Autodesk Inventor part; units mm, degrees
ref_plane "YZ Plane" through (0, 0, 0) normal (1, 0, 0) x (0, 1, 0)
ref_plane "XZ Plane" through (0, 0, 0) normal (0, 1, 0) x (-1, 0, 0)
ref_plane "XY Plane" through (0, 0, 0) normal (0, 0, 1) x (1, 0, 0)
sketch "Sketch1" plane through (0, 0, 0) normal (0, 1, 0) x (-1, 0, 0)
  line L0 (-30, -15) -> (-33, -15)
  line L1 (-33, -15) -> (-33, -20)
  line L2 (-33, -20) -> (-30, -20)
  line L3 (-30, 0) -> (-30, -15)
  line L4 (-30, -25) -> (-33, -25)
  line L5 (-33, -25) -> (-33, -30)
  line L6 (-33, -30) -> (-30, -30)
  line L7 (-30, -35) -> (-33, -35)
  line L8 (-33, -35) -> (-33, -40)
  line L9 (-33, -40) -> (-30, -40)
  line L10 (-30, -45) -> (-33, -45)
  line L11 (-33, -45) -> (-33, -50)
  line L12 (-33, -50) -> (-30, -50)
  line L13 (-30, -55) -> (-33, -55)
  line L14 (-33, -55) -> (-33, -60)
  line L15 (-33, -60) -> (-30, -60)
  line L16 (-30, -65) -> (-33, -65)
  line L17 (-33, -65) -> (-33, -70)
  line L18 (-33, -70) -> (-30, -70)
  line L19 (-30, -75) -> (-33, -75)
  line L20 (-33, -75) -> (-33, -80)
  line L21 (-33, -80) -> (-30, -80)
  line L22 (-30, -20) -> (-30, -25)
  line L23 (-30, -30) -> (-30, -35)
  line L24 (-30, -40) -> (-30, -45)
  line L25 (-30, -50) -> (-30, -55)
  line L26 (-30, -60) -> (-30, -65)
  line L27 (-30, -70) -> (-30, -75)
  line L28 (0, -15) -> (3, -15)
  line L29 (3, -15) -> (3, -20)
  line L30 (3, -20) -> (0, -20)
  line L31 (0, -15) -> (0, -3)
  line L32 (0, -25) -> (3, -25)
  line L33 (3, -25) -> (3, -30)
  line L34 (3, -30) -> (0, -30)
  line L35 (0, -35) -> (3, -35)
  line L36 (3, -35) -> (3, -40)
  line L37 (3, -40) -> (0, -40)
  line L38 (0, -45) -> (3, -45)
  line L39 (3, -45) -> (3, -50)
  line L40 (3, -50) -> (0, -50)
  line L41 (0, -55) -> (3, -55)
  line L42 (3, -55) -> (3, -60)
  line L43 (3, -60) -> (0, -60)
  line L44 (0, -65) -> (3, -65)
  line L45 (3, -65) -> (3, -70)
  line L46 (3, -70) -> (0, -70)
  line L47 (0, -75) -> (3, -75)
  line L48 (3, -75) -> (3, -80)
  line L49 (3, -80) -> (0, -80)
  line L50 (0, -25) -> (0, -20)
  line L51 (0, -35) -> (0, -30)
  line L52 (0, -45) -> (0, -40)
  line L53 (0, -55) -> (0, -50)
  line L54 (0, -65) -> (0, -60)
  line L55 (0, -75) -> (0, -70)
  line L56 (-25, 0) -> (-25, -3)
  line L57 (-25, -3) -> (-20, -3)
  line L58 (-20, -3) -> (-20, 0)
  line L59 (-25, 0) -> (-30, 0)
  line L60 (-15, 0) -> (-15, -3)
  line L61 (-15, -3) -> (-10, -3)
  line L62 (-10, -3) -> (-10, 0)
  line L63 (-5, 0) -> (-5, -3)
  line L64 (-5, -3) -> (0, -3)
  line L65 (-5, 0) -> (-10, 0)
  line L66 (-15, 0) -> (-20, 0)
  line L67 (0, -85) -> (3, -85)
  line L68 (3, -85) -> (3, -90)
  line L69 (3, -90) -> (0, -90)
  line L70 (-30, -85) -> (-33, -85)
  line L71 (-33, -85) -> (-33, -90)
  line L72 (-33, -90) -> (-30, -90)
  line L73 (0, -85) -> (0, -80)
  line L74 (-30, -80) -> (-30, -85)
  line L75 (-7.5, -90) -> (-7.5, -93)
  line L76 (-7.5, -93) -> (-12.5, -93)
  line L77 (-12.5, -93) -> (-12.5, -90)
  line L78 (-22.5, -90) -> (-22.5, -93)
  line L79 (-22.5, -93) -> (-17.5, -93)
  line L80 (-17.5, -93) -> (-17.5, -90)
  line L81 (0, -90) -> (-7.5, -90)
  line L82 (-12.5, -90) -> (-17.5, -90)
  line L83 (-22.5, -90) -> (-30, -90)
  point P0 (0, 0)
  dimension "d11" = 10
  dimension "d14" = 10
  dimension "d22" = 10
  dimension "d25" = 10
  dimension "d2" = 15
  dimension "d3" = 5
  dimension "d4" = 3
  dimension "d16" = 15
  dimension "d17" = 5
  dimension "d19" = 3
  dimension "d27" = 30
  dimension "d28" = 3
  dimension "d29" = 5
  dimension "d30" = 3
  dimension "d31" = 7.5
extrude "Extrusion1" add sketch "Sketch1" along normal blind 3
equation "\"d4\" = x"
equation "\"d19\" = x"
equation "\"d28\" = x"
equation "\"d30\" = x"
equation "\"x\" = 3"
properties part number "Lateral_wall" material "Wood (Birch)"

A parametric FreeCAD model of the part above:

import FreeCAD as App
import Part
import Sketcher
from FreeCAD import Vector
Q = App.Units.Quantity

doc = App.newDocument("Part")
body = doc.addObject("PartDesign::Body", "Body")

# Sketch on XZ plane
sketch1 = body.newObject("Sketcher::SketchObject", "Sketch")
sketch1.AttachmentSupport = (doc.getObject("XZ_Plane"), [""])
sketch1.MapMode = "FlatFace"
sketch1.addGeometry([
    Part.LineSegment(Vector(30, 0, 0), Vector(30, -15, 0)),  # 0
    Part.LineSegment(Vector(30, -15, 0), Vector(33, -15, 0)),  # 1
    Part.LineSegment(Vector(33, -15, 0), Vector(33, -20, 0)),  # 2
    Part.LineSegment(Vector(33, -20, 0), Vector(30, -20, 0)),  # 3
    Part.LineSegment(Vector(30, -20, 0), Vector(30, -25, 0)),  # 4
    Part.LineSegment(Vector(30, -25, 0), Vector(33, -25, 0)),  # 5
    Part.LineSegment(Vector(33, -25, 0), Vector(33, -30, 0)),  # 6
    Part.LineSegment(Vector(33, -30, 0), Vector(30, -30, 0)),  # 7
    Part.LineSegment(Vector(30, -30, 0), Vector(30, -35, 0)),  # 8
    Part.LineSegment(Vector(30, -35, 0), Vector(33, -35, 0)),  # 9
    Part.LineSegment(Vector(33, -35, 0), Vector(33, -40, 0)),  # 10
    Part.LineSegment(Vector(33, -40, 0), Vector(30, -40, 0)),  # 11
    Part.LineSegment(Vector(30, -40, 0), Vector(30, -45, 0)),  # 12
    Part.LineSegment(Vector(30, -45, 0), Vector(33, -45, 0)),  # 13
    Part.LineSegment(Vector(33, -45, 0), Vector(33, -50, 0)),  # 14
    Part.LineSegment(Vector(33, -50, 0), Vector(30, -50, 0)),  # 15
    Part.LineSegment(Vector(30, -50, 0), Vector(30, -55, 0)),  # 16
    Part.LineSegment(Vector(30, -55, 0), Vector(33, -55, 0)),  # 17
    Part.LineSegment(Vector(33, -55, 0), Vector(33, -60, 0)),  # 18
    Part.LineSegment(Vector(33, -60, 0), Vector(30, -60, 0)),  # 19
    Part.LineSegment(Vector(30, -60, 0), Vector(30, -65, 0)),  # 20
    Part.LineSegment(Vector(30, -65, 0), Vector(33, -65, 0)),  # 21
    Part.LineSegment(Vector(33, -65, 0), Vector(33, -70, 0)),  # 22
    Part.LineSegment(Vector(33, -70, 0), Vector(30, -70, 0)),  # 23
    Part.LineSegment(Vector(30, -70, 0), Vector(30, -75, 0)),  # 24
    Part.LineSegment(Vector(30, -75, 0), Vector(33, -75, 0)),  # 25
    Part.LineSegment(Vector(33, -75, 0), Vector(33, -80, 0)),  # 26
    Part.LineSegment(Vector(33, -80, 0), Vector(30, -80, 0)),  # 27
    Part.LineSegment(Vector(30, -80, 0), Vector(30, -85, 0)),  # 28
    Part.LineSegment(Vector(30, -85, 0), Vector(33, -85, 0)),  # 29
    Part.LineSegment(Vector(33, -85, 0), Vector(33, -90, 0)),  # 30
    Part.LineSegment(Vector(33, -90, 0), Vector(22.5, -90, 0)),  # 31
    Part.LineSegment(Vector(22.5, -90, 0), Vector(22.5, -93, 0)),  # 32
    Part.LineSegment(Vector(22.5, -93, 0), Vector(17.5, -93, 0)),  # 33
    Part.LineSegment(Vector(17.5, -93, 0), Vector(17.5, -90, 0)),  # 34
    Part.LineSegment(Vector(17.5, -90, 0), Vector(12.5, -90, 0)),  # 35
    Part.LineSegment(Vector(12.5, -90, 0), Vector(12.5, -93, 0)),  # 36
    Part.LineSegment(Vector(12.5, -93, 0), Vector(7.5, -93, 0)),  # 37
    Part.LineSegment(Vector(7.5, -93, 0), Vector(7.5, -90, 0)),  # 38
    Part.LineSegment(Vector(7.5, -90, 0), Vector(-3, -90, 0)),  # 39
    Part.LineSegment(Vector(-3, -90, 0), Vector(-3, -85, 0)),  # 40
    Part.LineSegment(Vector(-3, -85, 0), Vector(0, -85, 0)),  # 41
    Part.LineSegment(Vector(0, -85, 0), Vector(0, -80, 0)),  # 42
    Part.LineSegment(Vector(0, -80, 0), Vector(-3, -80, 0)),  # 43
    Part.LineSegment(Vector(-3, -80, 0), Vector(-3, -75, 0)),  # 44
    Part.LineSegment(Vector(-3, -75, 0), Vector(0, -75, 0)),  # 45
    Part.LineSegment(Vector(0, -75, 0), Vector(0, -70, 0)),  # 46
    Part.LineSegment(Vector(0, -70, 0), Vector(-3, -70, 0)),  # 47
    Part.LineSegment(Vector(-3, -70, 0), Vector(-3, -65, 0)),  # 48
    Part.LineSegment(Vector(-3, -65, 0), Vector(0, -65, 0)),  # 49
    Part.LineSegment(Vector(0, -65, 0), Vector(0, -60, 0)),  # 50
    Part.LineSegment(Vector(0, -60, 0), Vector(-3, -60, 0)),  # 51
    Part.LineSegment(Vector(-3, -60, 0), Vector(-3, -55, 0)),  # 52
    Part.LineSegment(Vector(-3, -55, 0), Vector(0, -55, 0)),  # 53
    Part.LineSegment(Vector(0, -55, 0), Vector(0, -50, 0)),  # 54
    Part.LineSegment(Vector(0, -50, 0), Vector(-3, -50, 0)),  # 55
    Part.LineSegment(Vector(-3, -50, 0), Vector(-3, -45, 0)),  # 56
    Part.LineSegment(Vector(-3, -45, 0), Vector(0, -45, 0)),  # 57
    Part.LineSegment(Vector(0, -45, 0), Vector(0, -40, 0)),  # 58
    Part.LineSegment(Vector(0, -40, 0), Vector(-3, -40, 0)),  # 59
    Part.LineSegment(Vector(-3, -40, 0), Vector(-3, -35, 0)),  # 60
    Part.LineSegment(Vector(-3, -35, 0), Vector(0, -35, 0)),  # 61
    Part.LineSegment(Vector(0, -35, 0), Vector(0, -30, 0)),  # 62
    Part.LineSegment(Vector(0, -30, 0), Vector(-3, -30, 0)),  # 63
    Part.LineSegment(Vector(-3, -30, 0), Vector(-3, -25, 0)),  # 64
    Part.LineSegment(Vector(-3, -25, 0), Vector(0, -25, 0)),  # 65
    Part.LineSegment(Vector(0, -25, 0), Vector(0, -20, 0)),  # 66
    Part.LineSegment(Vector(0, -20, 0), Vector(-3, -20, 0)),  # 67
    Part.LineSegment(Vector(-3, -20, 0), Vector(-3, -15, 0)),  # 68
    Part.LineSegment(Vector(-3, -15, 0), Vector(0, -15, 0)),  # 69
    Part.LineSegment(Vector(0, -15, 0), Vector(0, -3, 0)),  # 70
    Part.LineSegment(Vector(0, -3, 0), Vector(5, -3, 0)),  # 71
    Part.LineSegment(Vector(5, -3, 0), Vector(5, 0, 0)),  # 72
    Part.LineSegment(Vector(5, 0, 0), Vector(10, 0, 0)),  # 73
    Part.LineSegment(Vector(10, 0, 0), Vector(10, -3, 0)),  # 74
    Part.LineSegment(Vector(10, -3, 0), Vector(15, -3, 0)),  # 75
    Part.LineSegment(Vector(15, -3, 0), Vector(15, 0, 0)),  # 76
    Part.LineSegment(Vector(15, 0, 0), Vector(20, 0, 0)),  # 77
    Part.LineSegment(Vector(20, 0, 0), Vector(20, -3, 0)),  # 78
    Part.LineSegment(Vector(20, -3, 0), Vector(25, -3, 0)),  # 79
    Part.LineSegment(Vector(25, -3, 0), Vector(25, 0, 0)),  # 80
    Part.LineSegment(Vector(25, 0, 0), Vector(30, 0, 0)),  # 81
], False)
sketch1.addConstraint([
    Sketcher.Constraint("Coincident", 0, 2, 1, 1),
    Sketcher.Constraint("Coincident", 1, 2, 2, 1),
    Sketcher.Constraint("Coincident", 2, 2, 3, 1),
    Sketcher.Constraint("Coincident", 3, 2, 4, 1),
    Sketcher.Constraint("Coincident", 4, 2, 5, 1),
    Sketcher.Constraint("Coincident", 5, 2, 6, 1),
    Sketcher.Constraint("Coincident", 6, 2, 7, 1),
    Sketcher.Constraint("Coincident", 7, 2, 8, 1),
    Sketcher.Constraint("Coincident", 8, 2, 9, 1),
    Sketcher.Constraint("Coincident", 9, 2, 10, 1),
    Sketcher.Constraint("Coincident", 10, 2, 11, 1),
    Sketcher.Constraint("Coincident", 11, 2, 12, 1),
    Sketcher.Constraint("Coincident", 12, 2, 13, 1),
    Sketcher.Constraint("Coincident", 13, 2, 14, 1),
    Sketcher.Constraint("Coincident", 14, 2, 15, 1),
    Sketcher.Constraint("Coincident", 15, 2, 16, 1),
    Sketcher.Constraint("Coincident", 16, 2, 17, 1),
    Sketcher.Constraint("Coincident", 17, 2, 18, 1),
    Sketcher.Constraint("Coincident", 18, 2, 19, 1),
    Sketcher.Constraint("Coincident", 19, 2, 20, 1),
    Sketcher.Constraint("Coincident", 20, 2, 21, 1),
    Sketcher.Constraint("Coincident", 21, 2, 22, 1),
    Sketcher.Constraint("Coincident", 22, 2, 23, 1),
    Sketcher.Constraint("Coincident", 23, 2, 24, 1),
    Sketcher.Constraint("Coincident", 24, 2, 25, 1),
    Sketcher.Constraint("Coincident", 25, 2, 26, 1),
    Sketcher.Constraint("Coincident", 26, 2, 27, 1),
    Sketcher.Constraint("Coincident", 27, 2, 28, 1),
    Sketcher.Constraint("Coincident", 28, 2, 29, 1),
    Sketcher.Constraint("Coincident", 29, 2, 30, 1),
    Sketcher.Constraint("Coincident", 30, 2, 31, 1),
    Sketcher.Constraint("Coincident", 31, 2, 32, 1),
    Sketcher.Constraint("Coincident", 32, 2, 33, 1),
    Sketcher.Constraint("Coincident", 33, 2, 34, 1),
    Sketcher.Constraint("Coincident", 34, 2, 35, 1),
    Sketcher.Constraint("Coincident", 35, 2, 36, 1),
    Sketcher.Constraint("Coincident", 36, 2, 37, 1),
    Sketcher.Constraint("Coincident", 37, 2, 38, 1),
    Sketcher.Constraint("Coincident", 38, 2, 39, 1),
    Sketcher.Constraint("Coincident", 39, 2, 40, 1),
    Sketcher.Constraint("Coincident", 40, 2, 41, 1),
    Sketcher.Constraint("Coincident", 41, 2, 42, 1),
    Sketcher.Constraint("Coincident", 42, 2, 43, 1),
    Sketcher.Constraint("Coincident", 43, 2, 44, 1),
    Sketcher.Constraint("Coincident", 44, 2, 45, 1),
    Sketcher.Constraint("Coincident", 45, 2, 46, 1),
    Sketcher.Constraint("Coincident", 46, 2, 47, 1),
    Sketcher.Constraint("Coincident", 47, 2, 48, 1),
    Sketcher.Constraint("Coincident", 48, 2, 49, 1),
    Sketcher.Constraint("Coincident", 49, 2, 50, 1),
    Sketcher.Constraint("Coincident", 50, 2, 51, 1),
    Sketcher.Constraint("Coincident", 51, 2, 52, 1),
    Sketcher.Constraint("Coincident", 52, 2, 53, 1),
    Sketcher.Constraint("Coincident", 53, 2, 54, 1),
    Sketcher.Constraint("Coincident", 54, 2, 55, 1),
    Sketcher.Constraint("Coincident", 55, 2, 56, 1),
    Sketcher.Constraint("Coincident", 56, 2, 57, 1),
    Sketcher.Constraint("Coincident", 57, 2, 58, 1),
    Sketcher.Constraint("Coincident", 58, 2, 59, 1),
    Sketcher.Constraint("Coincident", 59, 2, 60, 1),
    Sketcher.Constraint("Coincident", 60, 2, 61, 1),
    Sketcher.Constraint("Coincident", 61, 2, 62, 1),
    Sketcher.Constraint("Coincident", 62, 2, 63, 1),
    Sketcher.Constraint("Coincident", 63, 2, 64, 1),
    Sketcher.Constraint("Coincident", 64, 2, 65, 1),
    Sketcher.Constraint("Coincident", 65, 2, 66, 1),
    Sketcher.Constraint("Coincident", 66, 2, 67, 1),
    Sketcher.Constraint("Coincident", 67, 2, 68, 1),
    Sketcher.Constraint("Coincident", 68, 2, 69, 1),
    Sketcher.Constraint("Coincident", 69, 2, 70, 1),
    Sketcher.Constraint("Coincident", 70, 2, 71, 1),
    Sketcher.Constraint("Coincident", 71, 2, 72, 1),
    Sketcher.Constraint("Coincident", 72, 2, 73, 1),
    Sketcher.Constraint("Coincident", 73, 2, 74, 1),
    Sketcher.Constraint("Coincident", 74, 2, 75, 1),
    Sketcher.Constraint("Coincident", 75, 2, 76, 1),
    Sketcher.Constraint("Coincident", 76, 2, 77, 1),
    Sketcher.Constraint("Coincident", 77, 2, 78, 1),
    Sketcher.Constraint("Coincident", 78, 2, 79, 1),
    Sketcher.Constraint("Coincident", 79, 2, 80, 1),
    Sketcher.Constraint("Coincident", 80, 2, 81, 1),
    Sketcher.Constraint("Coincident", 81, 2, 0, 1),
    Sketcher.Constraint("Vertical", 0),
    Sketcher.Constraint("Horizontal", 1),
    Sketcher.Constraint("Vertical", 2),
    Sketcher.Constraint("Horizontal", 3),
    Sketcher.Constraint("Vertical", 4),
    Sketcher.Constraint("Horizontal", 5),
    Sketcher.Constraint("Vertical", 6),
    Sketcher.Constraint("Horizontal", 7),
    Sketcher.Constraint("Vertical", 8),
    Sketcher.Constraint("Horizontal", 9),
    Sketcher.Constraint("Vertical", 10),
    Sketcher.Constraint("Horizontal", 11),
    Sketcher.Constraint("Vertical", 12),
    Sketcher.Constraint("Horizontal", 13),
    Sketcher.Constraint("Vertical", 14),
    Sketcher.Constraint("Horizontal", 15),
    Sketcher.Constraint("Vertical", 16),
    Sketcher.Constraint("Horizontal", 17),
    Sketcher.Constraint("Vertical", 18),
    Sketcher.Constraint("Horizontal", 19),
    Sketcher.Constraint("Vertical", 20),
    Sketcher.Constraint("Horizontal", 21),
    Sketcher.Constraint("Vertical", 22),
    Sketcher.Constraint("Horizontal", 23),
    Sketcher.Constraint("Vertical", 24),
    Sketcher.Constraint("Horizontal", 25),
    Sketcher.Constraint("Vertical", 26),
    Sketcher.Constraint("Horizontal", 27),
    Sketcher.Constraint("Vertical", 28),
    Sketcher.Constraint("Horizontal", 29),
    Sketcher.Constraint("Vertical", 30),
    Sketcher.Constraint("Horizontal", 31),
    Sketcher.Constraint("Vertical", 32),
    Sketcher.Constraint("Horizontal", 33),
    Sketcher.Constraint("Vertical", 34),
    Sketcher.Constraint("Horizontal", 35),
    Sketcher.Constraint("Vertical", 36),
    Sketcher.Constraint("Horizontal", 37),
    Sketcher.Constraint("Vertical", 38),
    Sketcher.Constraint("Horizontal", 39),
    Sketcher.Constraint("Vertical", 40),
    Sketcher.Constraint("Horizontal", 41),
    Sketcher.Constraint("Vertical", 42),
    Sketcher.Constraint("Horizontal", 43),
    Sketcher.Constraint("Vertical", 44),
    Sketcher.Constraint("Horizontal", 45),
    Sketcher.Constraint("Vertical", 46),
    Sketcher.Constraint("Horizontal", 47),
    Sketcher.Constraint("Vertical", 48),
    Sketcher.Constraint("Horizontal", 49),
    Sketcher.Constraint("Vertical", 50),
    Sketcher.Constraint("Horizontal", 51),
    Sketcher.Constraint("Vertical", 52),
    Sketcher.Constraint("Horizontal", 53),
    Sketcher.Constraint("Vertical", 54),
    Sketcher.Constraint("Horizontal", 55),
    Sketcher.Constraint("Vertical", 56),
    Sketcher.Constraint("Horizontal", 57),
    Sketcher.Constraint("Vertical", 58),
    Sketcher.Constraint("Horizontal", 59),
    Sketcher.Constraint("Vertical", 60),
    Sketcher.Constraint("Horizontal", 61),
    Sketcher.Constraint("Vertical", 62),
    Sketcher.Constraint("Horizontal", 63),
    Sketcher.Constraint("Vertical", 64),
    Sketcher.Constraint("Horizontal", 65),
    Sketcher.Constraint("Vertical", 66),
    Sketcher.Constraint("Horizontal", 67),
    Sketcher.Constraint("Vertical", 68),
    Sketcher.Constraint("Horizontal", 69),
    Sketcher.Constraint("Vertical", 70),
    Sketcher.Constraint("Horizontal", 71),
    Sketcher.Constraint("Vertical", 72),
    Sketcher.Constraint("Horizontal", 73),
    Sketcher.Constraint("Vertical", 74),
    Sketcher.Constraint("Horizontal", 75),
    Sketcher.Constraint("Vertical", 76),
    Sketcher.Constraint("Horizontal", 77),
    Sketcher.Constraint("Vertical", 78),
    Sketcher.Constraint("Horizontal", 79),
    Sketcher.Constraint("Vertical", 80),
    Sketcher.Constraint("Horizontal", 81),
    Sketcher.Constraint("PointOnObject", 41, 2, -2),
    Sketcher.Constraint("PointOnObject", 45, 2, -2),
    Sketcher.Constraint("PointOnObject", 49, 2, -2),
    Sketcher.Constraint("PointOnObject", 53, 2, -2),
    Sketcher.Constraint("PointOnObject", 57, 2, -2),
    Sketcher.Constraint("PointOnObject", 61, 2, -2),
    Sketcher.Constraint("PointOnObject", 65, 2, -2),
    Sketcher.Constraint("PointOnObject", 69, 2, -2),
    Sketcher.Constraint("PointOnObject", 72, 2, -1),
    Sketcher.Constraint("PointOnObject", 76, 2, -1),
    Sketcher.Constraint("PointOnObject", 80, 2, -1),
    Sketcher.Constraint("Horizontal", 31, 2, 34, 2),
    Sketcher.Constraint("Horizontal", 33, 2, 36, 2),
    Sketcher.Constraint("Horizontal", 35, 2, 38, 2),
    Sketcher.Constraint("Horizontal", 29, 2, 40, 2),
    Sketcher.Constraint("Horizontal", 27, 2, 42, 2),
    Sketcher.Constraint("Horizontal", 25, 2, 44, 2),
    Sketcher.Constraint("Horizontal", 23, 2, 46, 2),
    Sketcher.Constraint("Horizontal", 21, 2, 48, 2),
    Sketcher.Constraint("Horizontal", 19, 2, 50, 2),
    Sketcher.Constraint("Horizontal", 17, 2, 52, 2),
    Sketcher.Constraint("Horizontal", 15, 2, 54, 2),
    Sketcher.Constraint("Horizontal", 13, 2, 56, 2),
    Sketcher.Constraint("Horizontal", 11, 2, 58, 2),
    Sketcher.Constraint("Horizontal", 9, 2, 60, 2),
    Sketcher.Constraint("Horizontal", 7, 2, 62, 2),
    Sketcher.Constraint("Horizontal", 5, 2, 64, 2),
    Sketcher.Constraint("Horizontal", 3, 2, 66, 2),
    Sketcher.Constraint("Horizontal", 1, 2, 68, 2),
    Sketcher.Constraint("Horizontal", 71, 2, 74, 2),
    Sketcher.Constraint("Horizontal", 75, 2, 78, 2),
    Sketcher.Constraint("Vertical", 0, 2, 3, 2),
    Sketcher.Constraint("Vertical", 2, 2, 5, 2),
    Sketcher.Constraint("Vertical", 4, 2, 7, 2),
    Sketcher.Constraint("Vertical", 6, 2, 9, 2),
    Sketcher.Constraint("Vertical", 8, 2, 11, 2),
    Sketcher.Constraint("Vertical", 10, 2, 13, 2),
    Sketcher.Constraint("Vertical", 12, 2, 15, 2),
    Sketcher.Constraint("Vertical", 14, 2, 17, 2),
    Sketcher.Constraint("Vertical", 16, 2, 19, 2),
    Sketcher.Constraint("Vertical", 18, 2, 21, 2),
    Sketcher.Constraint("Vertical", 20, 2, 23, 2),
    Sketcher.Constraint("Vertical", 22, 2, 25, 2),
    Sketcher.Constraint("Vertical", 24, 2, 27, 2),
    Sketcher.Constraint("Vertical", 26, 2, 29, 2),
    Sketcher.Constraint("Vertical", 40, 2, 43, 2),
    Sketcher.Constraint("Vertical", 44, 2, 47, 2),
    Sketcher.Constraint("Vertical", 48, 2, 51, 2),
    Sketcher.Constraint("Vertical", 52, 2, 55, 2),
    Sketcher.Constraint("Vertical", 56, 2, 59, 2),
    Sketcher.Constraint("Vertical", 60, 2, 63, 2),
    Sketcher.Constraint("Vertical", 64, 2, 67, 2),
    Sketcher.Constraint("Equal", 33, 35),
    Sketcher.Constraint("Equal", 35, 37),
    Sketcher.Constraint("Equal", 31, 39),
    Sketcher.Constraint("Equal", 29, 41),
    Sketcher.Constraint("Equal", 37, 71),
    Sketcher.Constraint("Equal", 71, 73),
    Sketcher.Constraint("Equal", 73, 75),
    Sketcher.Constraint("Equal", 75, 77),
    Sketcher.Constraint("Equal", 77, 79),
    Sketcher.Constraint("Equal", 79, 81),
    Sketcher.Constraint("Equal", 81, 2),
    Sketcher.Constraint("Equal", 2, 4),
    Sketcher.Constraint("Equal", 4, 6),
    Sketcher.Constraint("Equal", 6, 8),
    Sketcher.Constraint("Equal", 8, 10),
    Sketcher.Constraint("Equal", 10, 12),
    Sketcher.Constraint("Equal", 12, 14),
    Sketcher.Constraint("Equal", 14, 16),
    Sketcher.Constraint("Equal", 16, 18),
    Sketcher.Constraint("Equal", 18, 20),
    Sketcher.Constraint("Equal", 20, 22),
    Sketcher.Constraint("Equal", 22, 24),
    Sketcher.Constraint("Equal", 24, 26),
    Sketcher.Constraint("Equal", 26, 28),
    Sketcher.Constraint("Equal", 28, 30),
    Sketcher.Constraint("Equal", 69, 32),
    Sketcher.Constraint("Equal", 38, 72),
    Sketcher.Constraint("DistanceX", 1, 1, 1, 2, Q("3 mm")),
    Sketcher.Constraint("DistanceX", 33, 2, 33, 1, Q("5 mm")),
    Sketcher.Constraint("DistanceY", 0, 2, 0, 1, Q("15 mm")),
])
pad1 = body.newObject("PartDesign::Pad", "Pad")
pad1.Profile = sketch1
pad1.Length = 3
pad1.Reversed = True

doc.recompute()
